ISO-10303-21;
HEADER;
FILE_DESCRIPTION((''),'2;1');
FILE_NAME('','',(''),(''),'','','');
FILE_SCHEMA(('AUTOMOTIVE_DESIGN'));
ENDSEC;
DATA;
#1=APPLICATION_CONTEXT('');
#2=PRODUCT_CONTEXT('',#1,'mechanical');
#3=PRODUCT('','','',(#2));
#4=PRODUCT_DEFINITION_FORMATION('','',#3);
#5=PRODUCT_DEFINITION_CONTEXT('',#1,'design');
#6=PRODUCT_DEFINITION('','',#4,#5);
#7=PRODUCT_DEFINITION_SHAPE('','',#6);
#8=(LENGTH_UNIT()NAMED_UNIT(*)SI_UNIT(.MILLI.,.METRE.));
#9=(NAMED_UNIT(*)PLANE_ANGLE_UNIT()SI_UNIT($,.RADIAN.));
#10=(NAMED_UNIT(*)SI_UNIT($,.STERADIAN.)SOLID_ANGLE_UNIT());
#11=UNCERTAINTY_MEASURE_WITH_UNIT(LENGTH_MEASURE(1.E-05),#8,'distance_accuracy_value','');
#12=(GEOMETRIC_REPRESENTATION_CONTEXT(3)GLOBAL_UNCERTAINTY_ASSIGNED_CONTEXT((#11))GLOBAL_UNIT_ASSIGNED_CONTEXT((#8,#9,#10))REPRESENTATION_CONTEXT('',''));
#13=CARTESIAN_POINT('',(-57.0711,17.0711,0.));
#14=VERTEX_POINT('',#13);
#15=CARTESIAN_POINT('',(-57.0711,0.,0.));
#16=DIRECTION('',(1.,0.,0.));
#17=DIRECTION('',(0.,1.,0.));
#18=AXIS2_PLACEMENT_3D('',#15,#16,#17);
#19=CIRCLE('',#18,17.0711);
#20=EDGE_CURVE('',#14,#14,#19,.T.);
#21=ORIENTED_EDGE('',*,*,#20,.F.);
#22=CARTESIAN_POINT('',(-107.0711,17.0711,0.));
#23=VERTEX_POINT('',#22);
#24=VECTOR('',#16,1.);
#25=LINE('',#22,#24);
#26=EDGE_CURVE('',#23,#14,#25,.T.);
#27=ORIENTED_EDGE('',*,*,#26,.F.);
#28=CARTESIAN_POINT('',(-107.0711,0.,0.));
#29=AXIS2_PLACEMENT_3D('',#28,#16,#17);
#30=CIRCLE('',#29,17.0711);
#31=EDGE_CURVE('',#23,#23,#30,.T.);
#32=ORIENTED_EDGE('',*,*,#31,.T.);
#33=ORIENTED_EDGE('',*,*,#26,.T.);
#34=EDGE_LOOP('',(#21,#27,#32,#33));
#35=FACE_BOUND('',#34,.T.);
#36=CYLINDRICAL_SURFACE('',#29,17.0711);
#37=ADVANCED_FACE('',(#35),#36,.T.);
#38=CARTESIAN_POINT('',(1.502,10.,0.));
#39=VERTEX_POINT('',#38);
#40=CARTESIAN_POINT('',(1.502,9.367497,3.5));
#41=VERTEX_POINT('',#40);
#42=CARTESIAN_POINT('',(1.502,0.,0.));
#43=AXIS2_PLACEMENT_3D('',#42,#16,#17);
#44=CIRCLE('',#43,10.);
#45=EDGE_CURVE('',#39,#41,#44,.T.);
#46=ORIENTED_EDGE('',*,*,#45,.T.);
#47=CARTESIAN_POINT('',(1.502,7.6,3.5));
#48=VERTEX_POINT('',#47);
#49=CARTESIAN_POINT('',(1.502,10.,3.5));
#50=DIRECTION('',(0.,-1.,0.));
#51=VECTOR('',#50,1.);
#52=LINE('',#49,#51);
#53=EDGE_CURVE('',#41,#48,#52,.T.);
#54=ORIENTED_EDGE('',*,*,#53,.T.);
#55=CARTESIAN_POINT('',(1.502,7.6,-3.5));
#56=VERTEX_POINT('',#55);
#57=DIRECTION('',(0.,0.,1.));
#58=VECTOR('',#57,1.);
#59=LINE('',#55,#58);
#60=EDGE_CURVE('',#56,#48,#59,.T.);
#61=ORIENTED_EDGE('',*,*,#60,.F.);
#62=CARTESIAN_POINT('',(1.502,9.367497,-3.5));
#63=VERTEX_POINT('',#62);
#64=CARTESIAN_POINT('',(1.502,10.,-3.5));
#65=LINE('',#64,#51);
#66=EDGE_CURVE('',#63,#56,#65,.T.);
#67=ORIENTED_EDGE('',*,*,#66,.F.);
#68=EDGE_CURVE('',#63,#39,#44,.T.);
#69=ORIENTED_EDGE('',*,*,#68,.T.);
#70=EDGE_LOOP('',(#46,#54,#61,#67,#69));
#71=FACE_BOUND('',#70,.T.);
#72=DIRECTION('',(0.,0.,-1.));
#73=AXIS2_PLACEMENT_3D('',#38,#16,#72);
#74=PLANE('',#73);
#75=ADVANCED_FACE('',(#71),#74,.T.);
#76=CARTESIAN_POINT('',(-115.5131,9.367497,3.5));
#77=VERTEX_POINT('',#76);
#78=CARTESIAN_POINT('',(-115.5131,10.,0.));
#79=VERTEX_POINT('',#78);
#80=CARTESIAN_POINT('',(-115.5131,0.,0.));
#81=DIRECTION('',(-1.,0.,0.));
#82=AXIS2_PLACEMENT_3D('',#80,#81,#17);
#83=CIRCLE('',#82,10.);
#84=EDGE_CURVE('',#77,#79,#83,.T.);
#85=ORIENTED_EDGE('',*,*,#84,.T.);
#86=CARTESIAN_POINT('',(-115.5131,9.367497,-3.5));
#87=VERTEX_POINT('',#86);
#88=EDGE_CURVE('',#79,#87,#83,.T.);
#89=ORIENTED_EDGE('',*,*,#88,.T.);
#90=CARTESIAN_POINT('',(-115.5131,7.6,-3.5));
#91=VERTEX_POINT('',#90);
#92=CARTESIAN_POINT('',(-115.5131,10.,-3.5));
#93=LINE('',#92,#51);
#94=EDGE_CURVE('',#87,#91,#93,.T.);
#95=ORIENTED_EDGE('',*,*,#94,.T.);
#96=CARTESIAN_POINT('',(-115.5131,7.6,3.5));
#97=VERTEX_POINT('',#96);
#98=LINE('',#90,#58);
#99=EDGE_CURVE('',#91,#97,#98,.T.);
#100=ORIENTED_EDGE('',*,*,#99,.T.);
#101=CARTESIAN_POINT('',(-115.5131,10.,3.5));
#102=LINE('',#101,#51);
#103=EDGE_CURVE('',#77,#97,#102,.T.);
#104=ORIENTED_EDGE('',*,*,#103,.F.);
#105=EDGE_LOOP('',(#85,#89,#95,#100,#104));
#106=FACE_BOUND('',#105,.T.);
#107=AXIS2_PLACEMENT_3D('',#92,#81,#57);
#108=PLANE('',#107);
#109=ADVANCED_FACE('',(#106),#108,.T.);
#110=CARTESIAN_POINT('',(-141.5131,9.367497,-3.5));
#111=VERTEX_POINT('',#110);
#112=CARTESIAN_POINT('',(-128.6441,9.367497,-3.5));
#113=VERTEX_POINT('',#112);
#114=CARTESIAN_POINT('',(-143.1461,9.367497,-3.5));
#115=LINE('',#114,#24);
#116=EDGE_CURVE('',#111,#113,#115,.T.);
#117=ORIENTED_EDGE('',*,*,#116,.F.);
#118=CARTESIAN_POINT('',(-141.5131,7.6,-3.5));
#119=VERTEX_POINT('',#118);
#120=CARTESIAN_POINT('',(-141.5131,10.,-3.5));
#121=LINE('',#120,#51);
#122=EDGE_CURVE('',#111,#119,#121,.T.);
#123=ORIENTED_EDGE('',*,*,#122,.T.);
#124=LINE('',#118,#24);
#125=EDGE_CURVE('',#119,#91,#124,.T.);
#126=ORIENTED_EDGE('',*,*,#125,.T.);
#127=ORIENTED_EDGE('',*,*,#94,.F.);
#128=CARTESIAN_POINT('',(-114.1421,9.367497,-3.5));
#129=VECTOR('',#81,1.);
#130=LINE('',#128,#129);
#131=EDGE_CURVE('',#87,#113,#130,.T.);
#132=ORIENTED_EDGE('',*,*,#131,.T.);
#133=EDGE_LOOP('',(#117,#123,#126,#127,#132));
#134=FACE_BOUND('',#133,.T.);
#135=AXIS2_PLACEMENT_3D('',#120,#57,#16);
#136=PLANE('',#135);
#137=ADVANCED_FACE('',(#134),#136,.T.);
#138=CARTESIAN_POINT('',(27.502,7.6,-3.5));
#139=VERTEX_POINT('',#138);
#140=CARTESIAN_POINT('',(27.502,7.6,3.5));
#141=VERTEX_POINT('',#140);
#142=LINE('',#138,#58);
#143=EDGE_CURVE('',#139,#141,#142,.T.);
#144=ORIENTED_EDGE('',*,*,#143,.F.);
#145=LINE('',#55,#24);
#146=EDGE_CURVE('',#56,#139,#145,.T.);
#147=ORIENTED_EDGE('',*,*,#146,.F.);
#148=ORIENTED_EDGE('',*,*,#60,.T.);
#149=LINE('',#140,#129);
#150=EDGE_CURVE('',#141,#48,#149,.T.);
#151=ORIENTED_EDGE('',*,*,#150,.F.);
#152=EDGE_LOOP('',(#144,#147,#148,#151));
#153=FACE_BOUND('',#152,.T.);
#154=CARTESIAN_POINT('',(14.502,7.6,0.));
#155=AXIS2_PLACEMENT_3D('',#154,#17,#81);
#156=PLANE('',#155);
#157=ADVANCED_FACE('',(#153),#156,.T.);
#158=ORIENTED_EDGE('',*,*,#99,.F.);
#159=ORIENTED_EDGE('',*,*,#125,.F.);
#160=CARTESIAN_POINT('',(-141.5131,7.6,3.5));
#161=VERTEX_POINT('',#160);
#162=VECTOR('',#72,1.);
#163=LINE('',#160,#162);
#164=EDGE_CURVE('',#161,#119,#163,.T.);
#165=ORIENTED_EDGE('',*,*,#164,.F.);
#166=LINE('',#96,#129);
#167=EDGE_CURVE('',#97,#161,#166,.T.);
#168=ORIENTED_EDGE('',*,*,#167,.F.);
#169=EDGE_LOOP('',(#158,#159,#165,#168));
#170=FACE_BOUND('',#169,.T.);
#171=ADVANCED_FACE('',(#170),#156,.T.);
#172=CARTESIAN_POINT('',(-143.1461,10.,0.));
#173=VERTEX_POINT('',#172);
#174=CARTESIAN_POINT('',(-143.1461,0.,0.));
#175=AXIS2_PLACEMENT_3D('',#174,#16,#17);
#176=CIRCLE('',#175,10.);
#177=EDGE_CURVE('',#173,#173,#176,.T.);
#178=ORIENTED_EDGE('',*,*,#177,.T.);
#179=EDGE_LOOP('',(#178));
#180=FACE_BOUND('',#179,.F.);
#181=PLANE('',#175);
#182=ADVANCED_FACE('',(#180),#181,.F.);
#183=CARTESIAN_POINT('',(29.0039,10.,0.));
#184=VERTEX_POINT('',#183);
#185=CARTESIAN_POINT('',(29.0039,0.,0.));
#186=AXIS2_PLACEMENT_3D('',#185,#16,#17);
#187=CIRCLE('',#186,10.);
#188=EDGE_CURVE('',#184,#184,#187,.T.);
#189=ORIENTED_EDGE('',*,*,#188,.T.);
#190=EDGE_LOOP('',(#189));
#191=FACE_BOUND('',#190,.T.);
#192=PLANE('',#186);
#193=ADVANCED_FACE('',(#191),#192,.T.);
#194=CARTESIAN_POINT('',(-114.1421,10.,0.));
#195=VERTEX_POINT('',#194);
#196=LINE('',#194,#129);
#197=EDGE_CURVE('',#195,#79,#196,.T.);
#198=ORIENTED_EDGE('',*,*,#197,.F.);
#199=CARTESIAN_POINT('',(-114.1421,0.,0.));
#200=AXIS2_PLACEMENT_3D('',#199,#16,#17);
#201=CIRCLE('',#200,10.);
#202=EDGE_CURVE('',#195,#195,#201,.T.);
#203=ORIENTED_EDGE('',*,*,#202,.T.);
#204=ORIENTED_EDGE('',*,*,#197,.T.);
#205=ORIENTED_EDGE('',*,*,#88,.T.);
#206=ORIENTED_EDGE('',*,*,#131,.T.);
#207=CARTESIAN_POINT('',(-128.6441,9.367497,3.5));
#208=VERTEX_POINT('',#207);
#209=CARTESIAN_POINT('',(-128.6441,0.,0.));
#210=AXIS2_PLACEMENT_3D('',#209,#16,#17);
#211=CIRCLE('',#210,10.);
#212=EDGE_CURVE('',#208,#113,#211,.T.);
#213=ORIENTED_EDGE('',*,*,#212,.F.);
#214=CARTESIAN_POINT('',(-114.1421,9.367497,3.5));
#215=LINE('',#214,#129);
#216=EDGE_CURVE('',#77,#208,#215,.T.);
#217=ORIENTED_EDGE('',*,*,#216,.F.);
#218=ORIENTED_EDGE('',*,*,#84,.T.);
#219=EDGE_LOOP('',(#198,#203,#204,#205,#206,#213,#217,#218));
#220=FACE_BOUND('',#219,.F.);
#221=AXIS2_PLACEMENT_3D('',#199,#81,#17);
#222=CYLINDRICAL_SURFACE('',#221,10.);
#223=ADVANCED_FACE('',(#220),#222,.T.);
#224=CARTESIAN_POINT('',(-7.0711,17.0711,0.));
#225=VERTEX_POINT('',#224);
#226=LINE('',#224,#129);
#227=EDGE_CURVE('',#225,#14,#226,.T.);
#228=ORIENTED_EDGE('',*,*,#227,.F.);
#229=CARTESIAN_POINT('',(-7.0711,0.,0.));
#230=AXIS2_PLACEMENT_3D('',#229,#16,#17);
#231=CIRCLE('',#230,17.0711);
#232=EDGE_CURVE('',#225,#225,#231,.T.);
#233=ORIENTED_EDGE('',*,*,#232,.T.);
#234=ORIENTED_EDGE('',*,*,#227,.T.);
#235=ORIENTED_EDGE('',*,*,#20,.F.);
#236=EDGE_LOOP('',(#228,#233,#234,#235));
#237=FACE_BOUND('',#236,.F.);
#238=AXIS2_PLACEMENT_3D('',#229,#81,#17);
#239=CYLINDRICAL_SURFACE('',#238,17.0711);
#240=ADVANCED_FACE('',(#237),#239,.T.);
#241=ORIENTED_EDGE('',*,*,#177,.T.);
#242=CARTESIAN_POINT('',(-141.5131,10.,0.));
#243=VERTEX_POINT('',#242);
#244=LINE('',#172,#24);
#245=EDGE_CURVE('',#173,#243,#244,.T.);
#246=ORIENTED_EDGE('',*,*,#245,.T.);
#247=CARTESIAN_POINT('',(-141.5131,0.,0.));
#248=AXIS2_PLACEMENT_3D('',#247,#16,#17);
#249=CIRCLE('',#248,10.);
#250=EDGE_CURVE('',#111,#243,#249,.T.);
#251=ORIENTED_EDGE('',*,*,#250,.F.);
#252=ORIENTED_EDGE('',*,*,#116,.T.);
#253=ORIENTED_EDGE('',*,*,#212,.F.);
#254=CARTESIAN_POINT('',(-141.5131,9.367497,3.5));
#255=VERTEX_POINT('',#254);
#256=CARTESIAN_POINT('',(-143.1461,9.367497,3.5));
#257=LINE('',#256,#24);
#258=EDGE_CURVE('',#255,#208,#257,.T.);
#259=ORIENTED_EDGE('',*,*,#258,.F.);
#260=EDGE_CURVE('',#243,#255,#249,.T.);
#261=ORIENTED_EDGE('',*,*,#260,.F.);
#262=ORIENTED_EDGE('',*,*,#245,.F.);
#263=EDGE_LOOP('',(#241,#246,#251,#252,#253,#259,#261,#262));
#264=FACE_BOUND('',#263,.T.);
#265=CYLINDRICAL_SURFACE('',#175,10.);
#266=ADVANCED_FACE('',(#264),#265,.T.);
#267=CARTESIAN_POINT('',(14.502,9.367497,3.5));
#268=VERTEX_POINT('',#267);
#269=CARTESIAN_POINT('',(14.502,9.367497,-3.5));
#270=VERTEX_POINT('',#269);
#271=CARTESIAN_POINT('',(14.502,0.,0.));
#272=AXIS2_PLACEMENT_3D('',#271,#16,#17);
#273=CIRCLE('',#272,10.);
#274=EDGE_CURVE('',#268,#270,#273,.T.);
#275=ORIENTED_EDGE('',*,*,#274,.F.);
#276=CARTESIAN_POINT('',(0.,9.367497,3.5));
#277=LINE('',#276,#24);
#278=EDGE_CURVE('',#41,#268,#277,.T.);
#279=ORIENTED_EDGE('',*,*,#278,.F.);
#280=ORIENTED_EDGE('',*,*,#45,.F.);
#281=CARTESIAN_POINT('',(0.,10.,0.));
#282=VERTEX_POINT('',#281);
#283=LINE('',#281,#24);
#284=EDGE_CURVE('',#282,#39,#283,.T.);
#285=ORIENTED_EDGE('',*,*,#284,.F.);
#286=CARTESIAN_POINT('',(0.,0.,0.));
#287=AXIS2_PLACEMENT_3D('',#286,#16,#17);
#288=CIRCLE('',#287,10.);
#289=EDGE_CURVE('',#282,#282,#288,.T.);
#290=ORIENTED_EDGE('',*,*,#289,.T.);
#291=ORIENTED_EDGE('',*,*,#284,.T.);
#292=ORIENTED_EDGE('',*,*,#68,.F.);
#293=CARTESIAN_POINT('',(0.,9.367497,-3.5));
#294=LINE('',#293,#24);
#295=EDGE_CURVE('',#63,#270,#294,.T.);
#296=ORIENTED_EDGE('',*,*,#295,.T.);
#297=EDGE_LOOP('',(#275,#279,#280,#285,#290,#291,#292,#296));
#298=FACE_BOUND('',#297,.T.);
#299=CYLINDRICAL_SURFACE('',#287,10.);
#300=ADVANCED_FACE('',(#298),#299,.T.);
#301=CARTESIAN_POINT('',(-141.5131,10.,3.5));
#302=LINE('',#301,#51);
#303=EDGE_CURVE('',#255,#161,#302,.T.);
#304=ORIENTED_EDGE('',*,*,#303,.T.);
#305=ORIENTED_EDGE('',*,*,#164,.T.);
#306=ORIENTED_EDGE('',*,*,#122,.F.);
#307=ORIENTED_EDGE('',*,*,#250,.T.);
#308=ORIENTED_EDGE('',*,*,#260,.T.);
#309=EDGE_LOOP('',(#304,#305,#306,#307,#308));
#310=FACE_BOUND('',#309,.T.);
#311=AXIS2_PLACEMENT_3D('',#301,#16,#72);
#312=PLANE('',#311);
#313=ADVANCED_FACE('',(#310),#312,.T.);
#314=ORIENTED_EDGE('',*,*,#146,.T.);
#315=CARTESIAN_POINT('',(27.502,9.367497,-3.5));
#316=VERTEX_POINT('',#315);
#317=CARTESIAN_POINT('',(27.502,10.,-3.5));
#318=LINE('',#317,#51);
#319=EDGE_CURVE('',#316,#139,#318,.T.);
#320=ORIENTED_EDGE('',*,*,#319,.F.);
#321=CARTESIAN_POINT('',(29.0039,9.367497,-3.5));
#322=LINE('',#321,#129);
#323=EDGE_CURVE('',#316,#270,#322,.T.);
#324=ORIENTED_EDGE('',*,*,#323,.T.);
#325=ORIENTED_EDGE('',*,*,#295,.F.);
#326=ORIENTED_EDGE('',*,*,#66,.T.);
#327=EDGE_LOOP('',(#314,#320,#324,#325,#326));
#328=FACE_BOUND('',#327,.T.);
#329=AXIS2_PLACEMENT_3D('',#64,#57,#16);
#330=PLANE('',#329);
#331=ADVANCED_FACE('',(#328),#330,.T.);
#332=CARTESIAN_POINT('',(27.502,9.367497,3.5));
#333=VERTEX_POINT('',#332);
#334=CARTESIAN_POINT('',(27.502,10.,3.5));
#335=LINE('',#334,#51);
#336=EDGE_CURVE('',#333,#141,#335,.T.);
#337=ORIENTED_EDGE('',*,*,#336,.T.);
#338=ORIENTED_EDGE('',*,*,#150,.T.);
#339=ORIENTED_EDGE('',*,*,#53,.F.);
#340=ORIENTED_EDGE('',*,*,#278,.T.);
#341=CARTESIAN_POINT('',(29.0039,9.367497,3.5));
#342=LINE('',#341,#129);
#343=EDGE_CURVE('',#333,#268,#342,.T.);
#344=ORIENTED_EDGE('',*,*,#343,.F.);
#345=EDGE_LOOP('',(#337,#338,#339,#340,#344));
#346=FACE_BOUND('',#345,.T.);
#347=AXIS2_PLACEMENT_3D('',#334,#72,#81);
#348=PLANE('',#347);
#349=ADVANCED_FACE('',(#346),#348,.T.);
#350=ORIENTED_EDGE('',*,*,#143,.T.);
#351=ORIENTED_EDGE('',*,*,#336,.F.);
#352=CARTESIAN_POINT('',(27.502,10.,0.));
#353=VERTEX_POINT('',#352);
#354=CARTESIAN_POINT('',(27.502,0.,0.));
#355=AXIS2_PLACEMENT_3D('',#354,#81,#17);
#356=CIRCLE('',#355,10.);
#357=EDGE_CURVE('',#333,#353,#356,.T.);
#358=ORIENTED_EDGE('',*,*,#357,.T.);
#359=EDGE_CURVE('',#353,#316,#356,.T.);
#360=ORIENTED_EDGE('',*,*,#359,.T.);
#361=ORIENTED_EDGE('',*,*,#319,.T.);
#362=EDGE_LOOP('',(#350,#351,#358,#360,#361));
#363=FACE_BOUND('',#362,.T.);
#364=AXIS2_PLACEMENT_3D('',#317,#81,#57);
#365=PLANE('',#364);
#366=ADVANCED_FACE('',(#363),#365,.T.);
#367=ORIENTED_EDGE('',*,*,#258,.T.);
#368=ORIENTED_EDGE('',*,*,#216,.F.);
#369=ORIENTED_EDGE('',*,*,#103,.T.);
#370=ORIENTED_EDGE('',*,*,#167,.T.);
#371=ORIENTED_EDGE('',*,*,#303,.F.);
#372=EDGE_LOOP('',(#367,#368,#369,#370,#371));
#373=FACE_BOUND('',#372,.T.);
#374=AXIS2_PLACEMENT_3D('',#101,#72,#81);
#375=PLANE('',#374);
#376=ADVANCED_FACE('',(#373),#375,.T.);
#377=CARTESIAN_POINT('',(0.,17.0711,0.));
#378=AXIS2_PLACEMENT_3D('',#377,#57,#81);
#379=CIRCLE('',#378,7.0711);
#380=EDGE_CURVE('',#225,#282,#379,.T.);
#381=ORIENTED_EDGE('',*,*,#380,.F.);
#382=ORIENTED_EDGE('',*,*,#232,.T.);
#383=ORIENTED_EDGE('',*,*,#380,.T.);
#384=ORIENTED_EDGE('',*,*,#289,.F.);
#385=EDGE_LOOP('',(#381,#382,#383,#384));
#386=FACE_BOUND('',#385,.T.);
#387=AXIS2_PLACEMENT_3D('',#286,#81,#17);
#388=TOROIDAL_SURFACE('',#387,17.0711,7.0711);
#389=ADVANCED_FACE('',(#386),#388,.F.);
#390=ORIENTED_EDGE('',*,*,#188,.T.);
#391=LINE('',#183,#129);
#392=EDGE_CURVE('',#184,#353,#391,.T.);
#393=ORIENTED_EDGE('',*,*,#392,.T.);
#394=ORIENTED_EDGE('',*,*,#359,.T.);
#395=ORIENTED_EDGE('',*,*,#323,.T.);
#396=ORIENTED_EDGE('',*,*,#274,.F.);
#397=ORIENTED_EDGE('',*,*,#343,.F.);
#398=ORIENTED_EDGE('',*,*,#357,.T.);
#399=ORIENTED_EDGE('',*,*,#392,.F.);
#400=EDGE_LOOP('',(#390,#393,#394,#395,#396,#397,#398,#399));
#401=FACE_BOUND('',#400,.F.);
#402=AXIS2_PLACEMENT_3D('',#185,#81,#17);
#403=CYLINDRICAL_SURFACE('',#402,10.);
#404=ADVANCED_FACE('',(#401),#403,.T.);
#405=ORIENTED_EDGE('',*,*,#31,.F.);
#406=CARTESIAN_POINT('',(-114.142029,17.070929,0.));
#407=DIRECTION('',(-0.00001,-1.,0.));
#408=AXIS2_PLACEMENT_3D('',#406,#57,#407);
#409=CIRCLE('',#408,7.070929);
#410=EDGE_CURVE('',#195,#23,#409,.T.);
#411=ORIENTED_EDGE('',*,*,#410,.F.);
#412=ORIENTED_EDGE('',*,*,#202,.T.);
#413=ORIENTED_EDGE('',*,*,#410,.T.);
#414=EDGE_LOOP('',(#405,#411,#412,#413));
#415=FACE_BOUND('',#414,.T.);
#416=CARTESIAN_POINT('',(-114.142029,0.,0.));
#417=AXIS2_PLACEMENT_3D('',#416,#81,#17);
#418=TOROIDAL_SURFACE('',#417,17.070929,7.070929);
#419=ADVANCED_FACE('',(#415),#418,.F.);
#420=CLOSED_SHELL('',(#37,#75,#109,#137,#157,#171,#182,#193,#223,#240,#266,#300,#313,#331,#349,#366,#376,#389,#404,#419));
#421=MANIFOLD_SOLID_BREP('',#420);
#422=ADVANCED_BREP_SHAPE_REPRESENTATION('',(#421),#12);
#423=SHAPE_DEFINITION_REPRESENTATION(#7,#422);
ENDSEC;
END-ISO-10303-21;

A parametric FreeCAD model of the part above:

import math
import FreeCAD as App
import Part
import Sketcher
Q = App.Units.Quantity

doc = App.newDocument("Part")
body = doc.addObject("PartDesign::Body", "Body")

# Sketch on XY plane
sketch1 = body.newObject("Sketcher::SketchObject", "Sketch")
sketch1.AttachmentSupport = (doc.getObject("XY_Plane"), [""])
sketch1.MapMode = "FlatFace"
sketch1.addGeometry(Part.ArcOfCircle(Part.Circle(App.Vector(0, 17, 0), App.Vector(0, 0, 1), 7), math.radians(180), math.radians(270)), False)
sketch1.addGeometry(Part.LineSegment(App.Vector(-7, 17, 0), App.Vector(-107, 17, 0)), False)
sketch1.addGeometry(Part.ArcOfCircle(Part.Circle(App.Vector(-114, 17, 0), App.Vector(0, 0, 1), 7), math.radians(-90), math.radians(0)), False)
sketch1.addGeometry(Part.LineSegment(App.Vector(-114, 10, 0), App.Vector(-143, 10, 0)), False)
sketch1.addGeometry(Part.LineSegment(App.Vector(-143, 10, 0), App.Vector(-143, 0, 0)), False)
sketch1.addGeometry(Part.LineSegment(App.Vector(-143, 0, 0), App.Vector(29, 0, 0)), False)
sketch1.addGeometry(Part.LineSegment(App.Vector(29, 0, 0), App.Vector(29, 10, 0)), False)
sketch1.addGeometry(Part.LineSegment(App.Vector(29, 10, 0), App.Vector(0, 10, 0)), False)
sketch1.addConstraint(Sketcher.Constraint("Coincident", 0, 1, 1, 1))
sketch1.addConstraint(Sketcher.Constraint("Coincident", 1, 2, 2, 2))
sketch1.addConstraint(Sketcher.Constraint("Tangent", 2, 1, 3, 1))
sketch1.addConstraint(Sketcher.Constraint("Coincident", 3, 2, 4, 1))
sketch1.addConstraint(Sketcher.Constraint("Coincident", 4, 2, 5, 1))
sketch1.addConstraint(Sketcher.Constraint("Coincident", 5, 2, 6, 1))
sketch1.addConstraint(Sketcher.Constraint("Coincident", 6, 2, 7, 1))
sketch1.addConstraint(Sketcher.Constraint("Tangent", 7, 2, 0, 2))
sketch1.addConstraint(Sketcher.Constraint("Horizontal", 1))
sketch1.addConstraint(Sketcher.Constraint("Horizontal", 3))
sketch1.addConstraint(Sketcher.Constraint("Vertical", 4))
sketch1.addConstraint(Sketcher.Constraint("Horizontal", 5))
sketch1.addConstraint(Sketcher.Constraint("Vertical", 6))
sketch1.addConstraint(Sketcher.Constraint("Horizontal", 7))
sketch1.addConstraint(Sketcher.Constraint("Equal", 0, 2))
sketch1.addConstraint(Sketcher.Constraint("PointOnObject", 0, 3, -2))
sketch1.addConstraint(Sketcher.Constraint("PointOnObject", 4, 2, -1))
sketch1.addConstraint(Sketcher.Constraint("Horizontal", 0, 3, 2, 3))
sketch1.addConstraint(Sketcher.Constraint("Horizontal", 2, 3, 0, 1))
sketch1.addConstraint(Sketcher.Constraint("Equal", 3, 7))
sketch1.addConstraint(Sketcher.Constraint("DistanceX", 1, 2, 1, 1, Q("100 mm")))
sketch1.addConstraint(Sketcher.Constraint("DistanceY", 4, 2, 4, 1, Q("10 mm")))
sketch1.addConstraint(Sketcher.Constraint("Radius", 0, Q("7.071 mm")))
sketch1.addConstraint(Sketcher.Constraint("DistanceX", 5, 1, 5, 2, Q("172.15 mm")))
revolution = body.newObject("PartDesign::Revolution", "Revolution")
revolution.Profile = sketch1
revolution.ReferenceAxis = (sketch1, ["H_Axis"])
revolution.Angle = 360

# Sketch on XZ plane
sketch2 = body.newObject("Sketcher::SketchObject", "Sketch001")
sketch2.AttachmentSupport = (doc.getObject("XZ_Plane"), [""])
sketch2.MapMode = "FlatFace"
sketch2.AttachmentOffset = App.Placement(App.Vector(0, 0, -10), App.Rotation())
sketch2.addGeometry(Part.LineSegment(App.Vector(2, -4, 0), App.Vector(2, 4, 0)), False)
sketch2.addGeometry(Part.LineSegment(App.Vector(2, 4, 0), App.Vector(28, 4, 0)), False)
sketch2.addGeometry(Part.LineSegment(App.Vector(28, 4, 0), App.Vector(28, -4, 0)), False)
sketch2.addGeometry(Part.LineSegment(App.Vector(28, -4, 0), App.Vector(2, -4, 0)), False)
sketch2.addGeometry(Part.LineSegment(App.Vector(-116, -4, 0), App.Vector(-142, -4, 0)), False)
sketch2.addGeometry(Part.LineSegment(App.Vector(-142, -4, 0), App.Vector(-142, 4, 0)), False)
sketch2.addGeometry(Part.LineSegment(App.Vector(-142, 4, 0), App.Vector(-116, 4, 0)), False)
sketch2.addGeometry(Part.LineSegment(App.Vector(-116, 4, 0), App.Vector(-116, -4, 0)), False)
sketch2.addConstraint(Sketcher.Constraint("Coincident", 0, 2, 1, 1))
sketch2.addConstraint(Sketcher.Constraint("Coincident", 1, 2, 2, 1))
sketch2.addConstraint(Sketcher.Constraint("Coincident", 2, 2, 3, 1))
sketch2.addConstraint(Sketcher.Constraint("Coincident", 3, 2, 0, 1))
sketch2.addConstraint(Sketcher.Constraint("Coincident", 4, 2, 5, 1))
sketch2.addConstraint(Sketcher.Constraint("Coincident", 5, 2, 6, 1))
sketch2.addConstraint(Sketcher.Constraint("Coincident", 6, 2, 7, 1))
sketch2.addConstraint(Sketcher.Constraint("Coincident", 7, 2, 4, 1))
sketch2.addConstraint(Sketcher.Constraint("Vertical", 0))
sketch2.addConstraint(Sketcher.Constraint("Horizontal", 1))
sketch2.addConstraint(Sketcher.Constraint("Vertical", 2))
sketch2.addConstraint(Sketcher.Constraint("Horizontal", 3))
sketch2.addConstraint(Sketcher.Constraint("Horizontal", 4))
sketch2.addConstraint(Sketcher.Constraint("Vertical", 5))
sketch2.addConstraint(Sketcher.Constraint("Horizontal", 6))
sketch2.addConstraint(Sketcher.Constraint("Vertical", 7))
sketch2.addConstraint(Sketcher.Constraint("Horizontal", 3, 2, 4, 2))
sketch2.addConstraint(Sketcher.Constraint("Horizontal", 1, 2, 5, 2))
sketch2.addConstraint(Sketcher.Constraint("Equal", 3, 4))
sketch2.addConstraint(Sketcher.Constraint("DistanceX", 1, 1, 1, 2, Q("26 mm")))
sketch2.addConstraint(Sketcher.Constraint("DistanceY", 0, 1, 0, 2, Q("7 mm")))
sketch2.addConstraint(Sketcher.Constraint("DistanceY", -1, 1, 0, 2, Q("3.5 mm")))
sketch2.addConstraint(Sketcher.Constraint("DistanceX", -1, 1, 0, 2, Q("1.502 mm")))
sketch2.addConstraint(Sketcher.Constraint("DistanceX", 4, 2, -1, 1, Q("141.513 mm")))
pocket1 = body.newObject("PartDesign::Pocket", "Pocket")
pocket1.Profile = sketch2
pocket1.Length = 2.4
pocket1.Reversed = True

doc.recompute()
